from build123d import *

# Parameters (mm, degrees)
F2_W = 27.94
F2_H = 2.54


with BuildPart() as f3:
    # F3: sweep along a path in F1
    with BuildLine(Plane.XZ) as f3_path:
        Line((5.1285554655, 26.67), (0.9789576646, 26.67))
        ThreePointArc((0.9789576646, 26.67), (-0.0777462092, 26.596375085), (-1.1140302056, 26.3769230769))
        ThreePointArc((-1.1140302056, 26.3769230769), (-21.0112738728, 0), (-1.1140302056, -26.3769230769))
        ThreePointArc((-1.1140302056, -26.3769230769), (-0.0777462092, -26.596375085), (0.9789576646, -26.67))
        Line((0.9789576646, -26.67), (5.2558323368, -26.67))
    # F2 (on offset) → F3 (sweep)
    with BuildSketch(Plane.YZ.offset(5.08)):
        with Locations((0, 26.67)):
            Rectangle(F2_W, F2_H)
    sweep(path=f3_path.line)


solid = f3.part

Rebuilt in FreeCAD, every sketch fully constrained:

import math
import FreeCAD as App
import Part
import Sketcher

V = App.Vector
Q = App.Units.Quantity


def add_polygon(sketch, points):
    """Adds a closed chain of lines whose ends are joined by coincident constraints."""
    first, n = sketch.GeometryCount, len(points)
    for a, b in zip(points, points[1:] + points[:1]):
        sketch.addGeometry(Part.LineSegment(App.Vector(*a, 0), App.Vector(*b, 0)), False)
    for i in range(n):
        sketch.addConstraint(Sketcher.Constraint("Coincident", first + i, 2, first + (i + 1) % n, 1))

doc = App.newDocument("Part")
body = doc.addObject("PartDesign::Body", "Body")

# Sketch on YZ plane
sketch1 = body.newObject("Sketcher::SketchObject", "Sketch")
sketch1.AttachmentSupport = (doc.getObject("YZ_Plane"), [""])
sketch1.MapMode = "FlatFace"
sketch1.AttachmentOffset = App.Placement(V(0, 0, 0.2 * 25.4), App.Rotation())
add_polygon(sketch1, [(-14, 27.9), (-14, 25.4), (14, 25.4), (14, 27.9)])  # lines 0-3
sketch1.addConstraint([
    Sketcher.Constraint("Vertical", 0),
    Sketcher.Constraint("Horizontal", 1),
    Sketcher.Constraint("Vertical", 2),
    Sketcher.Constraint("Horizontal", 3),
    Sketcher.Constraint("DistanceX", 1, 1, 1, 2, Q("1.1 in")),
    Sketcher.Constraint("DistanceY", 0, 2, 0, 1, Q("0.1 in")),
    Sketcher.Constraint("DistanceY", -1, 1, 0, 2, Q("1 in")),
    Sketcher.Constraint("DistanceX", 0, 2, -1, 1, Q("0.55 in")),
])

# Sketch on XZ plane
sketch2 = body.newObject("Sketcher::SketchObject", "Sketch001")
sketch2.AttachmentSupport = (doc.getObject("XZ_Plane"), [""])
sketch2.MapMode = "FlatFace"
sketch2.addGeometry([
    Part.LineSegment(V(5.1, 26.7, 0), V(1, 26.7, 0)),  # 0
    Part.ArcOfCircle(Part.Circle(V(1, 19.1, 0), V(0, 0, 1), 7.6), math.radians(90), math.radians(105.94)),  # 1
    Part.ArcOfCircle(Part.Circle(V(6.4, 0, 0), V(0, 0, 1), 27.4), math.radians(106), math.radians(254)),  # 2
    Part.ArcOfCircle(Part.Circle(V(1, -19.1, 0), V(0, 0, 1), 7.6), math.radians(-105.94), math.radians(-90)),  # 3
    Part.LineSegment(V(1, -26.7, 0), V(5.3, -26.7, 0)),  # 4
], False)
sketch2.addConstraint([
    Sketcher.Constraint("Tangent", 0, 2, 1, 1),
    Sketcher.Constraint("Tangent", 1, 2, 2, 1),
    Sketcher.Constraint("Tangent", 2, 2, 3, 1),
    Sketcher.Constraint("Tangent", 3, 2, 4, 1),
    Sketcher.Constraint("Horizontal", 0),
    Sketcher.Constraint("Horizontal", 4),
    Sketcher.Constraint("Equal", 1, 3),
    Sketcher.Constraint("Symmetric", 1, 3, 3, 3, -1),
    Sketcher.Constraint("Radius", 1, Q("0.3 in")),
    Sketcher.Constraint("Radius", 2, Q("1.08 in")),
    Sketcher.Constraint("DistanceY", 3, 3, 1, 3, Q("1.5 in")),
    Sketcher.Constraint("DistanceX", 0, 2, 0, 1, Q("4.149598 mm")),
    Sketcher.Constraint("DistanceX", 4, 1, 4, 2, Q("4.276875 mm")),
    Sketcher.Constraint("DistanceX", 1, 2, -1, 1, Q("1.11403 mm")),
])
doc.recompute()

additivepipe = body.newObject("PartDesign::AdditivePipe", "AdditivePipe")
additivepipe.Profile = sketch1
additivepipe.Spine = (sketch2, ["Edge1", "Edge2", "Edge3", "Edge4", "Edge5"])

doc.recompute()
